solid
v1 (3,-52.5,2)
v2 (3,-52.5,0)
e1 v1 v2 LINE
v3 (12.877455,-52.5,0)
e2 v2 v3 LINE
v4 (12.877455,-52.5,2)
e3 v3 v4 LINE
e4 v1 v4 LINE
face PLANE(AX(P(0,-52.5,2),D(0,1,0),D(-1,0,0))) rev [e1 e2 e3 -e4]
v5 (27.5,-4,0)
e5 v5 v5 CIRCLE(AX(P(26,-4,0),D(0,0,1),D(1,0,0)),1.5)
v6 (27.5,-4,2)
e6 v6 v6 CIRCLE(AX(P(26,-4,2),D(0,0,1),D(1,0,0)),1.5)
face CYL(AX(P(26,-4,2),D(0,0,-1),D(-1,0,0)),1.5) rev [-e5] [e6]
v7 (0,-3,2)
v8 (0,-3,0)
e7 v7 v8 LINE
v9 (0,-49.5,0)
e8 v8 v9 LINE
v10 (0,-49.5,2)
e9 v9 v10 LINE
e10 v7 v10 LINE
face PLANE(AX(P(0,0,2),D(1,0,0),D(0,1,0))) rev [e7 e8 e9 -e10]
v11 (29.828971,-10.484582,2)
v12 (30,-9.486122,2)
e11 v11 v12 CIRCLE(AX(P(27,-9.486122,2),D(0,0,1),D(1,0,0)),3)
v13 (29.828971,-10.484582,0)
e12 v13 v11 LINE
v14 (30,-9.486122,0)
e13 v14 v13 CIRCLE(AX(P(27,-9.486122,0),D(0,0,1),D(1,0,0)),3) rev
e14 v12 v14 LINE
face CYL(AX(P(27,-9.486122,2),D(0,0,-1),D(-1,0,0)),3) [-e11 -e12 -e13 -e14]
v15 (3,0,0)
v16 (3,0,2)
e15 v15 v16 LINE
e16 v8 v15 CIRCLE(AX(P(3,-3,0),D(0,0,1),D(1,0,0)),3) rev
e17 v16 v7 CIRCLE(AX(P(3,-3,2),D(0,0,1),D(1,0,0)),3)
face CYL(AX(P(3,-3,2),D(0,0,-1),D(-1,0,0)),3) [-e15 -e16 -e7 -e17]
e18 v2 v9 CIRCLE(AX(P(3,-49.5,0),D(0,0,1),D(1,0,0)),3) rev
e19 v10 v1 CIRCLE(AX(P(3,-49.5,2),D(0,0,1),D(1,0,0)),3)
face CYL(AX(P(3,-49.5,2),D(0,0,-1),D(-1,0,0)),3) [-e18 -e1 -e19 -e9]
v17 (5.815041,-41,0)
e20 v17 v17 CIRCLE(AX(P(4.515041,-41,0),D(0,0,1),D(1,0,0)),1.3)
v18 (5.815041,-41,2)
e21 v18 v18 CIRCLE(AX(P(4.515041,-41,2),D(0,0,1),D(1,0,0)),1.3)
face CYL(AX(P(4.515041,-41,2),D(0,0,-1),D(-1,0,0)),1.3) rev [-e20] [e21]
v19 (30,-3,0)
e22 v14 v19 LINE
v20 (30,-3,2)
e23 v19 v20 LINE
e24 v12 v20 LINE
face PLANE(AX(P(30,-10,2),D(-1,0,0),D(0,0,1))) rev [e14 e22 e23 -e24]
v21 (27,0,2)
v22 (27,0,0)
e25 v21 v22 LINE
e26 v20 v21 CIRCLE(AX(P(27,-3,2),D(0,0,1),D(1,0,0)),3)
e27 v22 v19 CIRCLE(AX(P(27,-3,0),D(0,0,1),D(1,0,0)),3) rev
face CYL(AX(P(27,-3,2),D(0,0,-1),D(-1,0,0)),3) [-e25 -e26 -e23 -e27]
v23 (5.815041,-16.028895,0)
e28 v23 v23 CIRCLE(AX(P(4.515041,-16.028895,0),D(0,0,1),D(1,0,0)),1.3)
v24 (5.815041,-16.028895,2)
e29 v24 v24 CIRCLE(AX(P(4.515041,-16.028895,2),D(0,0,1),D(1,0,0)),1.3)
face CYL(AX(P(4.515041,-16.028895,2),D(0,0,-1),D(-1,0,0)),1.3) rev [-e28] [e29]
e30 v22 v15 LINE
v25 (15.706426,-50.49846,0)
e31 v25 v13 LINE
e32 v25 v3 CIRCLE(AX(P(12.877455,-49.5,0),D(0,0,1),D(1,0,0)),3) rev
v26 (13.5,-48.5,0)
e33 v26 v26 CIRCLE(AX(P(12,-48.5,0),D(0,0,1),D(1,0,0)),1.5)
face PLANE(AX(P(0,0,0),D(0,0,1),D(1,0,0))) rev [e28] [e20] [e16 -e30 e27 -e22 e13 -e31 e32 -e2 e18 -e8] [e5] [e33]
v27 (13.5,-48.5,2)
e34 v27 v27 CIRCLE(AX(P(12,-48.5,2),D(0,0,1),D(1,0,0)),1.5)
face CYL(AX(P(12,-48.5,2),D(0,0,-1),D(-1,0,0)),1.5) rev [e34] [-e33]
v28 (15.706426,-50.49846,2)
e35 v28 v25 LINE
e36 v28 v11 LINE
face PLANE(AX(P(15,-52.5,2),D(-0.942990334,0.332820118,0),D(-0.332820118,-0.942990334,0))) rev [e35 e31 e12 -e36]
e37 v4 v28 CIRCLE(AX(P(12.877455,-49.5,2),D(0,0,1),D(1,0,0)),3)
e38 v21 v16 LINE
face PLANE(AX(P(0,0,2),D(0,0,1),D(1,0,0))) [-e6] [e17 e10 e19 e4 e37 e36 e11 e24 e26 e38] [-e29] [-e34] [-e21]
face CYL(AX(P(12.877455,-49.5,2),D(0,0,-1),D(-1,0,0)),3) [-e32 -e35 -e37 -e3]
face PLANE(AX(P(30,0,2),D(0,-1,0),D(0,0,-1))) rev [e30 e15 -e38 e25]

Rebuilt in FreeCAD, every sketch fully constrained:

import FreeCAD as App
import Part
import Sketcher


def edges_at(feature, points):
    """Names of the edges that pass closest to the given points."""
    edges = feature.Shape.Edges
    near = lambda p: min(range(len(edges)), key=lambda i: edges[i].distToShape(Part.Vertex(*p))[0])
    return sorted({f"Edge{near(p) + 1}" for p in points})


def add_polygon(sketch, points):
    """Adds a closed chain of lines whose ends are joined by coincident constraints."""
    first, n = sketch.GeometryCount, len(points)
    for a, b in zip(points, points[1:] + points[:1]):
        sketch.addGeometry(Part.LineSegment(App.Vector(*a, 0), App.Vector(*b, 0)), False)
    for i in range(n):
        sketch.addConstraint(Sketcher.Constraint("Coincident", first + i, 2, first + (i + 1) % n, 1))

doc = App.newDocument("Part")
params = doc.addObject("Spreadsheet::Sheet", "Params")
for row, (alias, value) in enumerate([
    ("sketch1_diameter", "3 mm"),
    ("sketch1_diameter2", "2.6 mm"),
    ("sketch1_width", "30 mm"),
    ("sketch1_width2", "15 mm"),
    ("sketch1_height", "10 mm"),
    ("pad1_length", "2 mm"),
    ("fillet_radius", "3 mm"),
], start=1):
    params.set(f"A{row}", alias)
    params.set(f"B{row}", "=" + value)
    params.setAlias(f"B{row}", alias)

body = doc.addObject("PartDesign::Body", "Body")

# Sketch on XY plane
sketch1 = body.newObject("Sketcher::SketchObject", "Sketch")
sketch1.AttachmentSupport = (doc.getObject("XY_Plane"), [""])
sketch1.MapMode = "FlatFace"
add_polygon(sketch1, [(30, 0), (0, 0), (0, -52.5), (15, -52.5), (30, -10)])  # lines 0-4
sketch1.addGeometry(Part.Circle(App.Vector(4.5, -41, 0), App.Vector(0, 0, 1), 1.3), False)  # 5
sketch1.addGeometry(Part.Circle(App.Vector(12, -48.5, 0), App.Vector(0, 0, 1), 1.5), False)  # 6
sketch1.addGeometry(Part.Circle(App.Vector(4.5, -16, 0), App.Vector(0, 0, 1), 1.3), False)  # 7
sketch1.addGeometry(Part.Circle(App.Vector(26, -4, 0), App.Vector(0, 0, 1), 1.5), False)  # 8
sketch1.addConstraint(Sketcher.Constraint("Horizontal", 0))
sketch1.addConstraint(Sketcher.Constraint("Vertical", 1))
sketch1.addConstraint(Sketcher.Constraint("Horizontal", 2))
sketch1.addConstraint(Sketcher.Constraint("Vertical", 4))
sketch1.addConstraint(Sketcher.Constraint("Coincident", 0, 2, -1, 1))
sketch1.addConstraint(Sketcher.Constraint("Equal", 5, 7))
sketch1.addConstraint(Sketcher.Constraint("Equal", 6, 8))
sketch1.addConstraint(Sketcher.Constraint("Vertical", 5, 3, 7, 3))
sketch1.addConstraint(Sketcher.Constraint("Diameter", 6, 3.0))
sketch1.addConstraint(Sketcher.Constraint("Diameter", 5, 2.6))
sketch1.addConstraint(Sketcher.Constraint("DistanceX", 0, 2, 0, 1, 30.0))
sketch1.addConstraint(Sketcher.Constraint("DistanceX", 2, 1, 2, 2, 15.0))
sketch1.addConstraint(Sketcher.Constraint("DistanceY", 4, 1, 4, 2, 10.0))
sketch1.addConstraint(Sketcher.Constraint("DistanceY", 1, 2, 1, 1, 52.5))
sketch1.addConstraint(Sketcher.Constraint("DistanceY", 5, 3, -1, 1, 41.0))
sketch1.addConstraint(Sketcher.Constraint("DistanceX", -1, 1, 6, 3, 12.0))
sketch1.addConstraint(Sketcher.Constraint("DistanceX", -1, 1, 8, 3, 26.0))
sketch1.addConstraint(Sketcher.Constraint("DistanceY", 8, 3, -1, 1, 4.0))
sketch1.addConstraint(Sketcher.Constraint("DistanceY", 1, 2, 6, 3, 4.0))
sketch1.addConstraint(Sketcher.Constraint("DistanceX", -1, 1, 5, 3, 4.515041))
sketch1.addConstraint(Sketcher.Constraint("DistanceY", 7, 3, -1, 1, 16.028895))
sketch1.setExpression("Constraints[13]", "Params.sketch1_diameter")
sketch1.setExpression("Constraints[14]", "Params.sketch1_diameter2")
sketch1.setExpression("Constraints[15]", "Params.sketch1_width")
sketch1.setExpression("Constraints[16]", "Params.sketch1_width2")
sketch1.setExpression("Constraints[17]", "Params.sketch1_height")
pad1 = body.newObject("PartDesign::Pad", "Pad")
pad1.Profile = sketch1
pad1.setExpression("Length", "Params.pad1_length")
doc.recompute()

fillet = body.newObject("PartDesign::Fillet", "Fillet")
fillet.Base = (pad1, edges_at(pad1, [
    (30, -10, 1),
    (15, -52.5, 1),
    (0, -52.5, 1),
    (0, 0, 1),
    (30, 0, 1),
]))
fillet.setExpression("Radius", "Params.fillet_radius")

doc.recompute()
